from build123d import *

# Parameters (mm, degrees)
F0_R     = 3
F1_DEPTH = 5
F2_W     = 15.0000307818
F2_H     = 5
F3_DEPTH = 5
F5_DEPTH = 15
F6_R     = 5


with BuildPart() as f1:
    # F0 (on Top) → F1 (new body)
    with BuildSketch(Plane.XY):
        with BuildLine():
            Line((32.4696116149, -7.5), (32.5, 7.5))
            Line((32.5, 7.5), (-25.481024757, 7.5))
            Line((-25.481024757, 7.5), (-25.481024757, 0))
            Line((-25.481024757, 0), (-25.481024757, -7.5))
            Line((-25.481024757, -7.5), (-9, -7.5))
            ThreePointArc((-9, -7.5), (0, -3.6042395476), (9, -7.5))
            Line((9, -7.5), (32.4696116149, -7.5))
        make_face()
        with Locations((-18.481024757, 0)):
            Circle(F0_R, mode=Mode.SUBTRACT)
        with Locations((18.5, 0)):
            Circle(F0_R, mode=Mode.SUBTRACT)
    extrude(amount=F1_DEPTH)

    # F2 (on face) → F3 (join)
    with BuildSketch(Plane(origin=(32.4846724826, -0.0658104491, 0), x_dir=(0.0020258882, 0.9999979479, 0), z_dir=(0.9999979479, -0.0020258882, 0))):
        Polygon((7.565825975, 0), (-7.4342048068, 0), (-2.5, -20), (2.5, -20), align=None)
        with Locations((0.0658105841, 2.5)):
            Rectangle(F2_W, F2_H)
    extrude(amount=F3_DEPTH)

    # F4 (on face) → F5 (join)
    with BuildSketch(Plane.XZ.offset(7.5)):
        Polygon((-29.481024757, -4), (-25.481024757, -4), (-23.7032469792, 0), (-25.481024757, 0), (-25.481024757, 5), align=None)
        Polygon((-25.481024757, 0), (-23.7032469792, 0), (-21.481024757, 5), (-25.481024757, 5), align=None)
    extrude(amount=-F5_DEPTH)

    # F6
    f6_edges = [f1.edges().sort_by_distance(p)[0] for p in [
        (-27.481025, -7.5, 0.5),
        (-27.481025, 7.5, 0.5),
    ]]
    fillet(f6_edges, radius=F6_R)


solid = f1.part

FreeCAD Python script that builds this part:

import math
import FreeCAD as App
import Part
import Sketcher


def edges_at(feature, points):
    """Names of the edges that pass closest to the given points."""
    edges = feature.Shape.Edges
    near = lambda p: min(range(len(edges)), key=lambda i: edges[i].distToShape(Part.Vertex(*p))[0])
    return sorted({f"Edge{near(p) + 1}" for p in points})

doc = App.newDocument("Part")
body = doc.addObject("PartDesign::Body", "Body")

sketch1 = doc.addObject("Sketcher::SketchObject", "Sketch")
body.addObject(sketch1)
sketch1.AttachmentSupport = (doc.XY_Plane, [""])
sketch1.MapMode = "FlatFace"
sketch1.addGeometry([
    Part.LineSegment(App.Vector(32.5, -7.5, 0), App.Vector(32.5, 7.5, 0)),
    Part.LineSegment(App.Vector(32.5, 7.5, 0), App.Vector(-25.5, 7.5, 0)),
    Part.LineSegment(App.Vector(-25.5, 7.5, 0), App.Vector(-25.5, -7.5, 0)),
    Part.LineSegment(App.Vector(-25.5, -7.5, 0), App.Vector(-9, -7.5, 0)),
    Part.ArcOfCircle(Part.Circle(App.Vector(0, -15.9, 0), App.Vector(0, 0, 1), 12.3), math.radians(43), math.radians(137)),
    Part.LineSegment(App.Vector(9, -7.5, 0), App.Vector(32.5, -7.5, 0)),
    Part.Circle(App.Vector(-18.5, 0, 0), App.Vector(0, 0, 1), 3),
    Part.Circle(App.Vector(18.5, 0, 0), App.Vector(0, 0, 1), 3),
], False)
sketch1.addConstraint([
    Sketcher.Constraint("Coincident", 0, 2, 1, 1),
    Sketcher.Constraint("Coincident", 1, 2, 2, 1),
    Sketcher.Constraint("Coincident", 2, 2, 3, 1),
    Sketcher.Constraint("Coincident", 3, 2, 4, 2),
    Sketcher.Constraint("Coincident", 4, 1, 5, 1),
    Sketcher.Constraint("Coincident", 5, 2, 0, 1),
    Sketcher.Constraint("Horizontal", 1),
    Sketcher.Constraint("Vertical", 2),
    Sketcher.Constraint("Horizontal", 3),
    Sketcher.Constraint("Horizontal", 5),
    Sketcher.Constraint("Equal", 6, 7),
    Sketcher.Constraint("Symmetric", 3, 2, 4, 1, -2),
    Sketcher.Constraint("PointOnObject", 6, 3, -1),
    Sketcher.Constraint("PointOnObject", 7, 3, -1),
    Sketcher.Constraint("Diameter", 6, 6.0),
    Sketcher.Constraint("DistanceY", 2, 2, 2, 1, 15.0),
    Sketcher.Constraint("DistanceX", 3, 2, -1, 1, 9.0),
    Sketcher.Constraint("DistanceX", 7, 3, 0, 2, 14.0),
    Sketcher.Constraint("DistanceX", 1, 2, 6, 3, 7.0),
    Sketcher.Constraint("DistanceX", -1, 1, 7, 3, 18.5),
    Sketcher.Constraint("DistanceY", -1, 1, 0, 2, 7.5),
    Sketcher.Constraint("Radius", 4, 12.343797),
    Sketcher.Constraint("DistanceX", 5, 1, 5, 2, 23.469612),
    Sketcher.Constraint("DistanceX", 1, 2, 1, 1, 57.981025),
])
pad1 = doc.addObject("PartDesign::Pad", "Pad")
body.addObject(pad1)
pad1.Profile = sketch1
pad1.Length = 5

sketch2 = doc.addObject("Sketcher::SketchObject", "Sketch001")
body.addObject(sketch2)
sketch2.Placement = App.Placement(App.Vector(32.484672, -0.06581, 0), App.Rotation(App.Vector(0.002025888, 0.999997948, 0), App.Vector(0, 0, 1), App.Vector(0.999997948, -0.002025888, 0), "ZXY"))
sketch2.addGeometry([
    Part.LineSegment(App.Vector(-7, 0, 0), App.Vector(-3, -20, 0)),
    Part.LineSegment(App.Vector(-3, -20, 0), App.Vector(3, -20, 0)),
    Part.LineSegment(App.Vector(3, -20, 0), App.Vector(8, 0, 0)),
    Part.LineSegment(App.Vector(8, 0, 0), App.Vector(8, 5, 0)),
    Part.LineSegment(App.Vector(8, 5, 0), App.Vector(-7, 5, 0)),
    Part.LineSegment(App.Vector(-7, 5, 0), App.Vector(-7, 0, 0)),
], False)
sketch2.addConstraint([
    Sketcher.Constraint("Coincident", 0, 2, 1, 1),
    Sketcher.Constraint("Coincident", 1, 2, 2, 1),
    Sketcher.Constraint("Coincident", 2, 2, 3, 1),
    Sketcher.Constraint("Coincident", 3, 2, 4, 1),
    Sketcher.Constraint("Coincident", 4, 2, 5, 1),
    Sketcher.Constraint("Coincident", 5, 2, 0, 1),
    Sketcher.Constraint("Horizontal", 1),
    Sketcher.Constraint("Vertical", 3),
    Sketcher.Constraint("Horizontal", 4),
    Sketcher.Constraint("Vertical", 5),
    Sketcher.Constraint("PointOnObject", 2, 2, -1),
    Sketcher.Constraint("PointOnObject", 5, 2, -1),
    Sketcher.Constraint("Equal", 1, 3),
    Sketcher.Constraint("DistanceX", 1, 1, 1, 2, 5.0),
    Sketcher.Constraint("DistanceY", 0, 2, -1, 1, 20.0),
    Sketcher.Constraint("DistanceX", 0, 2, -1, 1, 2.5),
    Sketcher.Constraint("DistanceX", 4, 2, 4, 1, 15.000031),
    Sketcher.Constraint("Distance", 0, 20.599669),
])
pad2 = doc.addObject("PartDesign::Pad", "Pad001")
body.addObject(pad2)
pad2.Profile = sketch2
pad2.Length = 5

sketch3 = doc.addObject("Sketcher::SketchObject", "Sketch002")
body.addObject(sketch3)
sketch3.AttachmentSupport = (doc.XZ_Plane, [""])
sketch3.MapMode = "FlatFace"
sketch3.AttachmentOffset = App.Placement(App.Vector(0, 0, 7.5), App.Rotation())
sketch3.addGeometry([
    Part.LineSegment(App.Vector(-29.5, -4, 0), App.Vector(-25.5, -4, 0)),
    Part.LineSegment(App.Vector(-25.5, -4, 0), App.Vector(-23.7, 0, 0)),
    Part.LineSegment(App.Vector(-23.7, 0, 0), App.Vector(-21.5, 5, 0)),
    Part.LineSegment(App.Vector(-21.5, 5, 0), App.Vector(-25.5, 5, 0)),
    Part.LineSegment(App.Vector(-25.5, 5, 0), App.Vector(-29.5, -4, 0)),
], False)
sketch3.addConstraint([
    Sketcher.Constraint("Coincident", 0, 2, 1, 1),
    Sketcher.Constraint("Coincident", 1, 2, 2, 1),
    Sketcher.Constraint("Coincident", 2, 2, 3, 1),
    Sketcher.Constraint("Coincident", 3, 2, 4, 1),
    Sketcher.Constraint("Coincident", 4, 2, 0, 1),
    Sketcher.Constraint("Horizontal", 0),
    Sketcher.Constraint("Horizontal", 3),
    Sketcher.Constraint("PointOnObject", 1, 2, -1),
    Sketcher.Constraint("Parallel", 1, 2),
    Sketcher.Constraint("Parallel", 2, 4),
    Sketcher.Constraint("Vertical", 0, 2, 3, 2),
    Sketcher.Constraint("DistanceX", 0, 1, 0, 2, 4.0),
    Sketcher.Constraint("DistanceY", 0, 2, -1, 1, 4.0),
    Sketcher.Constraint("DistanceY", -1, 1, 2, 2, 5.0),
    Sketcher.Constraint("DistanceX", 0, 2, -1, 1, 25.481025),
])
pad3 = doc.addObject("PartDesign::Pad", "Pad002")
body.addObject(pad3)
pad3.Profile = sketch3
pad3.Length = 15
pad3.Reversed = True
doc.recompute()

fillet = doc.addObject("PartDesign::Fillet", "Fillet")
body.addObject(fillet)
fillet.Base = (pad3, edges_at(pad3, [(-27.481, -7.5, 0.5), (-27.481, 7.5, 0.5)]))
fillet.Radius = 5

doc.recompute()
